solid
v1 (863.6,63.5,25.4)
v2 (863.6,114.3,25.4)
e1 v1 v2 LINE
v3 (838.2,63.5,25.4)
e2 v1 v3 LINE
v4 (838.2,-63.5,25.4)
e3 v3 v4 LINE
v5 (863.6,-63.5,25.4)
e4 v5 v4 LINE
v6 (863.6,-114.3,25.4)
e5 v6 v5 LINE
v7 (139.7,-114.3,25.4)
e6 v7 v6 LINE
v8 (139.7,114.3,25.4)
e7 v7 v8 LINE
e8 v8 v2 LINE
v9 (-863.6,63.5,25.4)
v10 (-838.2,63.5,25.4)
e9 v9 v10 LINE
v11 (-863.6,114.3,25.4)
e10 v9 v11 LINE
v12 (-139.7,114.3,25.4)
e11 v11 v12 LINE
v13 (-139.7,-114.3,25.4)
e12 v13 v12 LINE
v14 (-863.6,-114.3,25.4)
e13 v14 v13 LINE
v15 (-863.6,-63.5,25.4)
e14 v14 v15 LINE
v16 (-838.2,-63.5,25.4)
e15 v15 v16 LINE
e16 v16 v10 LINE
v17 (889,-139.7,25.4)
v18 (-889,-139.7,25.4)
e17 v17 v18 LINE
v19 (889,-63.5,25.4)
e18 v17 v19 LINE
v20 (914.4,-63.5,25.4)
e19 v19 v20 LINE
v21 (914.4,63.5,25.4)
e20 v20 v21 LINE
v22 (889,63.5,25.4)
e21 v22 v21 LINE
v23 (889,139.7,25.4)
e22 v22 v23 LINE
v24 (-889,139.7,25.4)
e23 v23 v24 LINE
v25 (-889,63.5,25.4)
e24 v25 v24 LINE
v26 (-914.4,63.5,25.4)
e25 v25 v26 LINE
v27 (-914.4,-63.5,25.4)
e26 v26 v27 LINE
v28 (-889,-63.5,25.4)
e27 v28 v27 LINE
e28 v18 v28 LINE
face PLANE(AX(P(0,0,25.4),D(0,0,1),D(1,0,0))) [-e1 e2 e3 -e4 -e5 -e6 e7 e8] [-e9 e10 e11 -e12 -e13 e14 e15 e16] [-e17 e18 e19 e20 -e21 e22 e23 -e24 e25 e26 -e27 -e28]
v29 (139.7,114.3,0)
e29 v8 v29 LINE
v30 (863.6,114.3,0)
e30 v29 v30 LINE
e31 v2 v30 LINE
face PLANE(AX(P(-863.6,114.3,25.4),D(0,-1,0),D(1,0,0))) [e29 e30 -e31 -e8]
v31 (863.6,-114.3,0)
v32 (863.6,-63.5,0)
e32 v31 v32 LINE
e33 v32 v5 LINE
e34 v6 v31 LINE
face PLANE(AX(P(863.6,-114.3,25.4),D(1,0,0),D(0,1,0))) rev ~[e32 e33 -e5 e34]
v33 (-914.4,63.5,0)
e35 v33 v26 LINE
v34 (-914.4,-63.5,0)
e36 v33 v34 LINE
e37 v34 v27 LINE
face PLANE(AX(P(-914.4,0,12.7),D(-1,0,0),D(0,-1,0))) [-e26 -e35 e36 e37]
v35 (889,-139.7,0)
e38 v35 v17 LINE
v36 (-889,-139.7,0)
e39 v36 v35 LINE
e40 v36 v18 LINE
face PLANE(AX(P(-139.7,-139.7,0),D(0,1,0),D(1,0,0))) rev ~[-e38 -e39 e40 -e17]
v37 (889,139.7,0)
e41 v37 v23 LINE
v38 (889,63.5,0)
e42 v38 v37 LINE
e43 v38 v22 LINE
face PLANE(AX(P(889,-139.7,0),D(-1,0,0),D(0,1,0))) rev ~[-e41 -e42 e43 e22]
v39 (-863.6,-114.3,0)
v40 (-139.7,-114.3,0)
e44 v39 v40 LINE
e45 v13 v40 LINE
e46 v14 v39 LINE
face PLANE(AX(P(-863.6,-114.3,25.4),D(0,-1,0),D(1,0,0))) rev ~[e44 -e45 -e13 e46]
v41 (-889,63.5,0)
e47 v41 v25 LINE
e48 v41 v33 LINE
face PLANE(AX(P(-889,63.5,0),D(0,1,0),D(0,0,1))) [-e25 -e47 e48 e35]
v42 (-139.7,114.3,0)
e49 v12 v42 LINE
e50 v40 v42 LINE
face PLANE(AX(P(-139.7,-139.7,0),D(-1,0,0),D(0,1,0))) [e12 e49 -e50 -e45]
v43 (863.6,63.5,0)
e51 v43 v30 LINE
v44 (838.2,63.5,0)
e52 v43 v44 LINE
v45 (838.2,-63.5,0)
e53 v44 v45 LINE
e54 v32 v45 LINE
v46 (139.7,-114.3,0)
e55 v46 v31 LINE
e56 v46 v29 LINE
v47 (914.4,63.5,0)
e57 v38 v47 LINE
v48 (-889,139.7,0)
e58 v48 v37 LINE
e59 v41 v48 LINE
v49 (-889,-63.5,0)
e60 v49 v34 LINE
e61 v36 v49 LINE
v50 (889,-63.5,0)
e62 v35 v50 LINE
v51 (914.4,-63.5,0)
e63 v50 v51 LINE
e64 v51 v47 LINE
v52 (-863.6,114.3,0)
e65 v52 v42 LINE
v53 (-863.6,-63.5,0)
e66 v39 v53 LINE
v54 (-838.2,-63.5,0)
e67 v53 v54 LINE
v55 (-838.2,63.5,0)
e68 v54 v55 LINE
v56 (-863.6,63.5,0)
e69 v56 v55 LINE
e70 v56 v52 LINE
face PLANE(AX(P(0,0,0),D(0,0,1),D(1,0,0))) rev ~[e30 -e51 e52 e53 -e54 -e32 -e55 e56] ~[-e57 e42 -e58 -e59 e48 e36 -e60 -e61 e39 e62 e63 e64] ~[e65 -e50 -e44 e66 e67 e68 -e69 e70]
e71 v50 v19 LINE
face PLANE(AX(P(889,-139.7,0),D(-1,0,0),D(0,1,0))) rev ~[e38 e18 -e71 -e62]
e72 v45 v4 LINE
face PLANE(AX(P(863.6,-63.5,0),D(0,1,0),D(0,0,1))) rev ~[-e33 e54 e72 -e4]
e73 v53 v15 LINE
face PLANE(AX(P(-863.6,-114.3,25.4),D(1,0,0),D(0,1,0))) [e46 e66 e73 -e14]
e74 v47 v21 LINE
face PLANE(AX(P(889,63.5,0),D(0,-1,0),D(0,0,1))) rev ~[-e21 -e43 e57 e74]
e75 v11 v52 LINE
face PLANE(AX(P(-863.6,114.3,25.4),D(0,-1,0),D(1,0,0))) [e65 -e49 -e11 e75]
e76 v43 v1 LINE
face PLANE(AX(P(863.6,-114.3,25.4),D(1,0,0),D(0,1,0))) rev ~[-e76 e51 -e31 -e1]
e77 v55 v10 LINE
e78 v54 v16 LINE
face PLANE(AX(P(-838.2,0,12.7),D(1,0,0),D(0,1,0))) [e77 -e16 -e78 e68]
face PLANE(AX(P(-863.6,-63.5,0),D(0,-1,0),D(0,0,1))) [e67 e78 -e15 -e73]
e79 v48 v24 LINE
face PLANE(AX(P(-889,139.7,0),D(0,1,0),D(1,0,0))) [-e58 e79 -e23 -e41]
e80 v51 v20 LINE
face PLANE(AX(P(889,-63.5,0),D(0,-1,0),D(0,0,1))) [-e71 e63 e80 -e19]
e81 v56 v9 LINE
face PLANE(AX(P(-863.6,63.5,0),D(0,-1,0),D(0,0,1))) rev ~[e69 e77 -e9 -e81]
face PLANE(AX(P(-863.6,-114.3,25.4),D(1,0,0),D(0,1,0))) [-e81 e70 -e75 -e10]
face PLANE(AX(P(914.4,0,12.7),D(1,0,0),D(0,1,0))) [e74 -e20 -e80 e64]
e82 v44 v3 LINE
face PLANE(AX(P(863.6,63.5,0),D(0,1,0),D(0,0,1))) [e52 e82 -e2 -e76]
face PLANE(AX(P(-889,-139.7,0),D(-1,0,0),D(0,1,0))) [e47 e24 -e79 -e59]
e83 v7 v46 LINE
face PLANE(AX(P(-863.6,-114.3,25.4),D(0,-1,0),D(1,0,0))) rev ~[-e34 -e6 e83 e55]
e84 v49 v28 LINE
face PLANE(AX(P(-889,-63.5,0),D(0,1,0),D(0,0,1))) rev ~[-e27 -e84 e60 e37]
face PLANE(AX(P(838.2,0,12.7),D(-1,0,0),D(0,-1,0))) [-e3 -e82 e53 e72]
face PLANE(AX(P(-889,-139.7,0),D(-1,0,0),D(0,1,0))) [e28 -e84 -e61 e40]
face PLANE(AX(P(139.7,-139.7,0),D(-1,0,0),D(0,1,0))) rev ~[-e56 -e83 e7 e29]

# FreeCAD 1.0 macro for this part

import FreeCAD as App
import Part
import Sketcher

V = App.Vector
Q = App.Units.Quantity

doc = App.newDocument("Part")
body = doc.addObject("PartDesign::Body", "Body")

sketch1 = body.newObject("Sketcher::SketchObject", "Sketch")
sketch1.AttachmentSupport = (doc.getObject("XY_Plane"), [""])
sketch1.MapMode = "FlatFace"
sketch1.addGeometry(Part.LineSegment(V(-889, 140, 0), V(-889, -140, 0)), False)
sketch1.addGeometry(Part.LineSegment(V(-889, -140, 0), V(889, -140, 0)), False)
sketch1.addGeometry(Part.LineSegment(V(889, -140, 0), V(889, 140, 0)), False)
sketch1.addGeometry(Part.LineSegment(V(889, 140, 0), V(-889, 140, 0)), False)
sketch1.addConstraint(Sketcher.Constraint("Coincident", 0, 2, 1, 1))
sketch1.addConstraint(Sketcher.Constraint("Coincident", 1, 2, 2, 1))
sketch1.addConstraint(Sketcher.Constraint("Coincident", 2, 2, 3, 1))
sketch1.addConstraint(Sketcher.Constraint("Coincident", 3, 2, 0, 1))
sketch1.addConstraint(Sketcher.Constraint("Vertical", 0))
sketch1.addConstraint(Sketcher.Constraint("Horizontal", 1))
sketch1.addConstraint(Sketcher.Constraint("Vertical", 2))
sketch1.addConstraint(Sketcher.Constraint("Horizontal", 3))
sketch1.addConstraint(Sketcher.Constraint("Symmetric", 0, 2, 2, 2, -1, 1))
sketch1.addConstraint(Sketcher.Constraint("DistanceX", 1, 1, 1, 2, Q("70 in")))
sketch1.addConstraint(Sketcher.Constraint("DistanceY", 0, 2, 0, 1, Q("11 in")))
pad1 = body.newObject("PartDesign::Pad", "Pad")
pad1.Profile = sketch1
pad1.Length = Q("1 in")

sketch2 = body.newObject("Sketcher::SketchObject", "Sketch001")
sketch2.AttachmentSupport = (doc.getObject("XY_Plane"), [""])
sketch2.MapMode = "FlatFace"
sketch2.AttachmentOffset = App.Placement(V(0, 0, 1 * 25.4), App.Rotation())
sketch2.addGeometry(Part.LineSegment(V(-864, 114, 0), V(-864, -114, 0)), False)
sketch2.addGeometry(Part.LineSegment(V(-864, -114, 0), V(864, -114, 0)), False)
sketch2.addGeometry(Part.LineSegment(V(864, -114, 0), V(864, 114, 0)), False)
sketch2.addGeometry(Part.LineSegment(V(864, 114, 0), V(-864, 114, 0)), False)
sketch2.addConstraint(Sketcher.Constraint("Coincident", 0, 2, 1, 1))
sketch2.addConstraint(Sketcher.Constraint("Coincident", 1, 2, 2, 1))
sketch2.addConstraint(Sketcher.Constraint("Coincident", 2, 2, 3, 1))
sketch2.addConstraint(Sketcher.Constraint("Coincident", 3, 2, 0, 1))
sketch2.addConstraint(Sketcher.Constraint("Vertical", 0))
sketch2.addConstraint(Sketcher.Constraint("Horizontal", 1))
sketch2.addConstraint(Sketcher.Constraint("Vertical", 2))
sketch2.addConstraint(Sketcher.Constraint("Horizontal", 3))
sketch2.addConstraint(Sketcher.Constraint("Symmetric", 0, 2, 2, 2, -1, 1))
sketch2.addConstraint(Sketcher.Constraint("DistanceX", 1, 1, 1, 2, Q("68 in")))
sketch2.addConstraint(Sketcher.Constraint("DistanceY", 0, 2, 0, 1, Q("9 in")))
pocket1 = body.newObject("PartDesign::Pocket", "Pocket")
pocket1.Profile = sketch2
pocket1.Type = "ThroughAll"

sketch3 = body.newObject("Sketcher::SketchObject", "Sketch002")
sketch3.AttachmentSupport = (doc.getObject("XY_Plane"), [""])
sketch3.MapMode = "FlatFace"
sketch3.addGeometry(Part.LineSegment(V(-140, 140, 0), V(-140, -140, 0)), False)
sketch3.addGeometry(Part.LineSegment(V(-140, -140, 0), V(140, -140, 0)), False)
sketch3.addGeometry(Part.LineSegment(V(140, -140, 0), V(140, 140, 0)), False)
sketch3.addGeometry(Part.LineSegment(V(140, 140, 0), V(-140, 140, 0)), False)
sketch3.addConstraint(Sketcher.Constraint("Coincident", 0, 2, 1, 1))
sketch3.addConstraint(Sketcher.Constraint("Coincident", 1, 2, 2, 1))
sketch3.addConstraint(Sketcher.Constraint("Coincident", 2, 2, 3, 1))
sketch3.addConstraint(Sketcher.Constraint("Coincident", 3, 2, 0, 1))
sketch3.addConstraint(Sketcher.Constraint("Vertical", 0))
sketch3.addConstraint(Sketcher.Constraint("Horizontal", 1))
sketch3.addConstraint(Sketcher.Constraint("Vertical", 2))
sketch3.addConstraint(Sketcher.Constraint("Horizontal", 3))
sketch3.addConstraint(Sketcher.Constraint("Symmetric", 0, 2, 2, 2, -1, 1))
sketch3.addConstraint(Sketcher.Constraint("Equal", 3, 0))
sketch3.addConstraint(Sketcher.Constraint("DistanceX", 1, 1, 1, 2, Q("11 in")))
pad2 = body.newObject("PartDesign::Pad", "Pad001")
pad2.Profile = sketch3
pad2.Length = Q("1 in")

sketch4 = body.newObject("Sketcher::SketchObject", "Sketch003")
sketch4.AttachmentSupport = (doc.getObject("YZ_Plane"), [""])
sketch4.MapMode = "FlatFace"
sketch4.AttachmentOffset = App.Placement(V(0, 0, -35 * 25.4), App.Rotation())
sketch4.addGeometry(Part.LineSegment(V(64, 25, 0), V(64, 0, 0)), False)
sketch4.addGeometry(Part.LineSegment(V(64, 0, 0), V(-64, 0, 0)), False)
sketch4.addGeometry(Part.LineSegment(V(-64, 0, 0), V(-64, 25, 0)), False)
sketch4.addGeometry(Part.LineSegment(V(-64, 25, 0), V(64, 25, 0)), False)
sketch4.addConstraint(Sketcher.Constraint("Coincident", 0, 2, 1, 1))
sketch4.addConstraint(Sketcher.Constraint("Coincident", 1, 2, 2, 1))
sketch4.addConstraint(Sketcher.Constraint("Coincident", 2, 2, 3, 1))
sketch4.addConstraint(Sketcher.Constraint("Coincident", 3, 2, 0, 1))
sketch4.addConstraint(Sketcher.Constraint("Vertical", 0))
sketch4.addConstraint(Sketcher.Constraint("Horizontal", 1))
sketch4.addConstraint(Sketcher.Constraint("Vertical", 2))
sketch4.addConstraint(Sketcher.Constraint("Horizontal", 3))
sketch4.addConstraint(Sketcher.Constraint("Symmetric", 0, 2, 1, 2, -1, 1))
sketch4.addConstraint(Sketcher.Constraint("DistanceX", 1, 2, 1, 1, Q("5 in")))
sketch4.addConstraint(Sketcher.Constraint("DistanceY", 0, 2, 0, 1, Q("1 in")))
pad3 = body.newObject("PartDesign::Pad", "Pad002")
pad3.Profile = sketch4
pad3.Length = Q("1 in")
pad3.Reversed = True

sketch5 = body.newObject("Sketcher::SketchObject", "Sketch004")
sketch5.AttachmentSupport = (doc.getObject("YZ_Plane"), [""])
sketch5.MapMode = "FlatFace"
sketch5.AttachmentOffset = App.Placement(V(0, 0, 34 * 25.4), App.Rotation())
sketch5.addGeometry(Part.LineSegment(V(64, 25, 0), V(64, 0, 0)), False)
sketch5.addGeometry(Part.LineSegment(V(64, 0, 0), V(-64, 0, 0)), False)
sketch5.addGeometry(Part.LineSegment(V(-64, 0, 0), V(-64, 25, 0)), False)
sketch5.addGeometry(Part.LineSegment(V(-64, 25, 0), V(64, 25, 0)), False)
sketch5.addConstraint(Sketcher.Constraint("Coincident", 0, 2, 1, 1))
sketch5.addConstraint(Sketcher.Constraint("Coincident", 1, 2, 2, 1))
sketch5.addConstraint(Sketcher.Constraint("Coincident", 2, 2, 3, 1))
sketch5.addConstraint(Sketcher.Constraint("Coincident", 3, 2, 0, 1))
sketch5.addConstraint(Sketcher.Constraint("Vertical", 0))
sketch5.addConstraint(Sketcher.Constraint("Horizontal", 1))
sketch5.addConstraint(Sketcher.Constraint("Vertical", 2))
sketch5.addConstraint(Sketcher.Constraint("Horizontal", 3))
sketch5.addConstraint(Sketcher.Constraint("Symmetric", 0, 2, 1, 2, -1, 1))
sketch5.addConstraint(Sketcher.Constraint("DistanceX", 1, 2, 1, 1, Q("5 in")))
sketch5.addConstraint(Sketcher.Constraint("DistanceY", 0, 2, 0, 1, Q("1 in")))
pad4 = body.newObject("PartDesign::Pad", "Pad003")
pad4.Profile = sketch5
pad4.Length = Q("1 in")
pad4.Reversed = True

sketch6 = body.newObject("Sketcher::SketchObject", "Sketch005")
sketch6.AttachmentSupport = (doc.getObject("YZ_Plane"), [""])
sketch6.MapMode = "FlatFace"
sketch6.AttachmentOffset = App.Placement(V(0, 0, 35 * 25.4), App.Rotation())
sketch6.addGeometry(Part.LineSegment(V(-64, 25, 0), V(-64, 0, 0)), False)
sketch6.addGeometry(Part.LineSegment(V(-64, 0, 0), V(64, 0, 0)), False)
sketch6.addGeometry(Part.LineSegment(V(64, 0, 0), V(64, 25, 0)), False)
sketch6.addGeometry(Part.LineSegment(V(64, 25, 0), V(-64, 25, 0)), False)
sketch6.addConstraint(Sketcher.Constraint("Coincident", 0, 2, 1, 1))
sketch6.addConstraint(Sketcher.Constraint("Coincident", 1, 2, 2, 1))
sketch6.addConstraint(Sketcher.Constraint("Coincident", 2, 2, 3, 1))
sketch6.addConstraint(Sketcher.Constraint("Coincident", 3, 2, 0, 1))
sketch6.addConstraint(Sketcher.Constraint("Vertical", 0))
sketch6.addConstraint(Sketcher.Constraint("Horizontal", 1))
sketch6.addConstraint(Sketcher.Constraint("Vertical", 2))
sketch6.addConstraint(Sketcher.Constraint("Horizontal", 3))
sketch6.addConstraint(Sketcher.Constraint("Symmetric", 0, 2, 1, 2, -1, 1))
sketch6.addConstraint(Sketcher.Constraint("DistanceX", 1, 1, 1, 2, Q("5 in")))
sketch6.addConstraint(Sketcher.Constraint("DistanceY", 0, 2, 0, 1, Q("1 in")))
pad5 = body.newObject("PartDesign::Pad", "Pad004")
pad5.Profile = sketch6
pad5.Length = Q("1 in")

sketch7 = body.newObject("Sketcher::SketchObject", "Sketch006")
sketch7.AttachmentSupport = (doc.getObject("YZ_Plane"), [""])
sketch7.MapMode = "FlatFace"
sketch7.AttachmentOffset = App.Placement(V(0, 0, -34 * 25.4), App.Rotation())
sketch7.addGeometry(Part.LineSegment(V(-64, 25, 0), V(-64, 0, 0)), False)
sketch7.addGeometry(Part.LineSegment(V(-64, 0, 0), V(64, 0, 0)), False)
sketch7.addGeometry(Part.LineSegment(V(64, 0, 0), V(64, 25, 0)), False)
sketch7.addGeometry(Part.LineSegment(V(64, 25, 0), V(-64, 25, 0)), False)
sketch7.addConstraint(Sketcher.Constraint("Coincident", 0, 2, 1, 1))
sketch7.addConstraint(Sketcher.Constraint("Coincident", 1, 2, 2, 1))
sketch7.addConstraint(Sketcher.Constraint("Coincident", 2, 2, 3, 1))
sketch7.addConstraint(Sketcher.Constraint("Coincident", 3, 2, 0, 1))
sketch7.addConstraint(Sketcher.Constraint("Vertical", 0))
sketch7.addConstraint(Sketcher.Constraint("Horizontal", 1))
sketch7.addConstraint(Sketcher.Constraint("Vertical", 2))
sketch7.addConstraint(Sketcher.Constraint("Horizontal", 3))
sketch7.addConstraint(Sketcher.Constraint("Symmetric", 0, 2, 1, 2, -1, 1))
sketch7.addConstraint(Sketcher.Constraint("DistanceX", 1, 1, 1, 2, Q("5 in")))
sketch7.addConstraint(Sketcher.Constraint("DistanceY", 0, 2, 0, 1, Q("1 in")))
pad6 = body.newObject("PartDesign::Pad", "Pad005")
pad6.Profile = sketch7
pad6.Length = Q("1 in")

doc.recompute()
